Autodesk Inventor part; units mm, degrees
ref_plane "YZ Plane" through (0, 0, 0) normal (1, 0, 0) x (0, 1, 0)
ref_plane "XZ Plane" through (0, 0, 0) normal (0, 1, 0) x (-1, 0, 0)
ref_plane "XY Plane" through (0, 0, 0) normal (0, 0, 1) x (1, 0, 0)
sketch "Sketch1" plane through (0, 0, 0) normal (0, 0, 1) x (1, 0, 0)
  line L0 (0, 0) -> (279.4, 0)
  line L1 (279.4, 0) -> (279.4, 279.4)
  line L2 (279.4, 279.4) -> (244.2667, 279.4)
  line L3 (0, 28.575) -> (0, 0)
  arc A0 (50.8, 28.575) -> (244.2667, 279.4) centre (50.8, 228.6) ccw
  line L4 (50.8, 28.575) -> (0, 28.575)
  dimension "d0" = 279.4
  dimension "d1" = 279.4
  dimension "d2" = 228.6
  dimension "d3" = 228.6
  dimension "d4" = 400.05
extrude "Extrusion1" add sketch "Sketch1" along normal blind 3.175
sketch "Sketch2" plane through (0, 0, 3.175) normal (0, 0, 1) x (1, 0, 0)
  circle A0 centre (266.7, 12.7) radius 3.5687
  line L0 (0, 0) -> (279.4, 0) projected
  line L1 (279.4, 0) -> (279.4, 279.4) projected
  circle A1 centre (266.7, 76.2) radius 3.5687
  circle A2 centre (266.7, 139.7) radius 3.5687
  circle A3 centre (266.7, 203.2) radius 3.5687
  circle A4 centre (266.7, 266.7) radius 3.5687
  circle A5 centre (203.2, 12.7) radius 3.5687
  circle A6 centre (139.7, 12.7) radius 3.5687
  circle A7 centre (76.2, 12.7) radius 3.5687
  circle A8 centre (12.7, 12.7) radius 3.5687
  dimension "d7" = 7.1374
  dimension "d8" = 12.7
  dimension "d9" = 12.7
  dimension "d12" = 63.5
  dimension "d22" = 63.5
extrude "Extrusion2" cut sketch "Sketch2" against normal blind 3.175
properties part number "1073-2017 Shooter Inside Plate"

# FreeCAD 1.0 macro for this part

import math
import FreeCAD as App
import Part
import Sketcher
from FreeCAD import Vector
Q = App.Units.Quantity

doc = App.newDocument("Part")
body = doc.addObject("PartDesign::Body", "Body")

sketch1 = body.newObject("Sketcher::SketchObject", "Sketch")
sketch1.AttachmentSupport = (doc.getObject("XY_Plane"), [""])
sketch1.MapMode = "FlatFace"
sketch1.addGeometry([
    Part.LineSegment(Vector(0, 29, 0), Vector(0, 0, 0)),
    Part.LineSegment(Vector(0, 0, 0), Vector(279, 0, 0)),
    Part.LineSegment(Vector(279, 0, 0), Vector(279, 279, 0)),
    Part.LineSegment(Vector(279, 279, 0), Vector(244, 279, 0)),
    Part.ArcOfCircle(Part.Circle(Vector(51, 229, 0), Vector(0, 0, 1), 200), math.radians(-90), math.radians(15)),
    Part.LineSegment(Vector(51, 29, 0), Vector(0, 29, 0)),
], False)
sketch1.addConstraint([
    Sketcher.Constraint("Coincident", 0, 2, 1, 1),
    Sketcher.Constraint("Coincident", 1, 2, 2, 1),
    Sketcher.Constraint("Coincident", 2, 2, 3, 1),
    Sketcher.Constraint("Coincident", 3, 2, 4, 2),
    Sketcher.Constraint("Tangent", 4, 1, 5, 1),
    Sketcher.Constraint("Coincident", 5, 2, 0, 1),
    Sketcher.Constraint("Vertical", 0),
    Sketcher.Constraint("Horizontal", 1),
    Sketcher.Constraint("Vertical", 2),
    Sketcher.Constraint("Horizontal", 3),
    Sketcher.Constraint("Horizontal", 5),
    Sketcher.Constraint("Coincident", 0, 2, -1, 1),
    Sketcher.Constraint("Equal", 1, 2),
    Sketcher.Constraint("DistanceX", 1, 1, 1, 2, Q("11 in")),
    Sketcher.Constraint("DistanceY", -1, 1, 4, 3, Q("9 in")),
    Sketcher.Constraint("Radius", 4, Q("7.875 in")),
    Sketcher.Constraint("DistanceX", 4, 3, 1, 2, Q("9 in")),
])
pad1 = body.newObject("PartDesign::Pad", "Pad")
pad1.Profile = sketch1
pad1.Length = Q("0.125 in")

sketch2 = body.newObject("Sketcher::SketchObject", "Sketch001")
sketch2.AttachmentSupport = (doc.getObject("XY_Plane"), [""])
sketch2.MapMode = "FlatFace"
sketch2.AttachmentOffset = App.Placement(Vector(0, 0, 0.125 * 25.4), App.Rotation())
sketch2.addGeometry([
    Part.Circle(Vector(266.7, 12.7, 0), Vector(0, 0, 1), 3.6),
    Part.Circle(Vector(266.7, 76.2, 0), Vector(0, 0, 1), 3.6),
    Part.Circle(Vector(266.7, 139.7, 0), Vector(0, 0, 1), 3.6),
    Part.Circle(Vector(266.7, 203.2, 0), Vector(0, 0, 1), 3.6),
    Part.Circle(Vector(266.7, 266.7, 0), Vector(0, 0, 1), 3.6),
    Part.Circle(Vector(203.2, 12.7, 0), Vector(0, 0, 1), 3.6),
    Part.Circle(Vector(139.7, 12.7, 0), Vector(0, 0, 1), 3.6),
    Part.Circle(Vector(76.2, 12.7, 0), Vector(0, 0, 1), 3.6),
    Part.Circle(Vector(12.7, 12.7, 0), Vector(0, 0, 1), 3.6),
], False)
sketch2.addConstraint([
    Sketcher.Constraint("Equal", 0, 1),
    Sketcher.Constraint("Equal", 1, 2),
    Sketcher.Constraint("Equal", 2, 3),
    Sketcher.Constraint("Equal", 3, 4),
    Sketcher.Constraint("Equal", 4, 5),
    Sketcher.Constraint("Equal", 5, 6),
    Sketcher.Constraint("Equal", 6, 7),
    Sketcher.Constraint("Equal", 7, 8),
    Sketcher.Constraint("Horizontal", 0, 3, 5, 3),
    Sketcher.Constraint("Horizontal", 5, 3, 6, 3),
    Sketcher.Constraint("Horizontal", 6, 3, 7, 3),
    Sketcher.Constraint("Horizontal", 7, 3, 8, 3),
    Sketcher.Constraint("Vertical", 0, 3, 1, 3),
    Sketcher.Constraint("Vertical", 1, 3, 2, 3),
    Sketcher.Constraint("Vertical", 2, 3, 3, 3),
    Sketcher.Constraint("Vertical", 3, 3, 4, 3),
    Sketcher.Constraint("Diameter", 0, Q("0.281 in")),
    Sketcher.Constraint("DistanceY", -1, 1, 0, 3, Q("0.5 in")),
    Sketcher.Constraint("DistanceX", -1, 1, 8, 3, Q("0.5 in")),
    Sketcher.Constraint("DistanceY", 0, 3, 1, 3, Q("2.5 in")),
    Sketcher.Constraint("DistanceY", 1, 3, 2, 3, Q("2.5 in")),
    Sketcher.Constraint("DistanceY", 2, 3, 3, 3, Q("2.5 in")),
    Sketcher.Constraint("DistanceY", 3, 3, 4, 3, Q("2.5 in")),
    Sketcher.Constraint("DistanceX", 5, 3, 0, 3, Q("2.5 in")),
    Sketcher.Constraint("DistanceX", 6, 3, 5, 3, Q("2.5 in")),
    Sketcher.Constraint("DistanceX", 7, 3, 6, 3, Q("2.5 in")),
    Sketcher.Constraint("DistanceX", 8, 3, 7, 3, Q("2.5 in")),
])
pocket1 = body.newObject("PartDesign::Pocket", "Pocket")
pocket1.Profile = sketch2
pocket1.Length = Q("0.125 in")

doc.recompute()
